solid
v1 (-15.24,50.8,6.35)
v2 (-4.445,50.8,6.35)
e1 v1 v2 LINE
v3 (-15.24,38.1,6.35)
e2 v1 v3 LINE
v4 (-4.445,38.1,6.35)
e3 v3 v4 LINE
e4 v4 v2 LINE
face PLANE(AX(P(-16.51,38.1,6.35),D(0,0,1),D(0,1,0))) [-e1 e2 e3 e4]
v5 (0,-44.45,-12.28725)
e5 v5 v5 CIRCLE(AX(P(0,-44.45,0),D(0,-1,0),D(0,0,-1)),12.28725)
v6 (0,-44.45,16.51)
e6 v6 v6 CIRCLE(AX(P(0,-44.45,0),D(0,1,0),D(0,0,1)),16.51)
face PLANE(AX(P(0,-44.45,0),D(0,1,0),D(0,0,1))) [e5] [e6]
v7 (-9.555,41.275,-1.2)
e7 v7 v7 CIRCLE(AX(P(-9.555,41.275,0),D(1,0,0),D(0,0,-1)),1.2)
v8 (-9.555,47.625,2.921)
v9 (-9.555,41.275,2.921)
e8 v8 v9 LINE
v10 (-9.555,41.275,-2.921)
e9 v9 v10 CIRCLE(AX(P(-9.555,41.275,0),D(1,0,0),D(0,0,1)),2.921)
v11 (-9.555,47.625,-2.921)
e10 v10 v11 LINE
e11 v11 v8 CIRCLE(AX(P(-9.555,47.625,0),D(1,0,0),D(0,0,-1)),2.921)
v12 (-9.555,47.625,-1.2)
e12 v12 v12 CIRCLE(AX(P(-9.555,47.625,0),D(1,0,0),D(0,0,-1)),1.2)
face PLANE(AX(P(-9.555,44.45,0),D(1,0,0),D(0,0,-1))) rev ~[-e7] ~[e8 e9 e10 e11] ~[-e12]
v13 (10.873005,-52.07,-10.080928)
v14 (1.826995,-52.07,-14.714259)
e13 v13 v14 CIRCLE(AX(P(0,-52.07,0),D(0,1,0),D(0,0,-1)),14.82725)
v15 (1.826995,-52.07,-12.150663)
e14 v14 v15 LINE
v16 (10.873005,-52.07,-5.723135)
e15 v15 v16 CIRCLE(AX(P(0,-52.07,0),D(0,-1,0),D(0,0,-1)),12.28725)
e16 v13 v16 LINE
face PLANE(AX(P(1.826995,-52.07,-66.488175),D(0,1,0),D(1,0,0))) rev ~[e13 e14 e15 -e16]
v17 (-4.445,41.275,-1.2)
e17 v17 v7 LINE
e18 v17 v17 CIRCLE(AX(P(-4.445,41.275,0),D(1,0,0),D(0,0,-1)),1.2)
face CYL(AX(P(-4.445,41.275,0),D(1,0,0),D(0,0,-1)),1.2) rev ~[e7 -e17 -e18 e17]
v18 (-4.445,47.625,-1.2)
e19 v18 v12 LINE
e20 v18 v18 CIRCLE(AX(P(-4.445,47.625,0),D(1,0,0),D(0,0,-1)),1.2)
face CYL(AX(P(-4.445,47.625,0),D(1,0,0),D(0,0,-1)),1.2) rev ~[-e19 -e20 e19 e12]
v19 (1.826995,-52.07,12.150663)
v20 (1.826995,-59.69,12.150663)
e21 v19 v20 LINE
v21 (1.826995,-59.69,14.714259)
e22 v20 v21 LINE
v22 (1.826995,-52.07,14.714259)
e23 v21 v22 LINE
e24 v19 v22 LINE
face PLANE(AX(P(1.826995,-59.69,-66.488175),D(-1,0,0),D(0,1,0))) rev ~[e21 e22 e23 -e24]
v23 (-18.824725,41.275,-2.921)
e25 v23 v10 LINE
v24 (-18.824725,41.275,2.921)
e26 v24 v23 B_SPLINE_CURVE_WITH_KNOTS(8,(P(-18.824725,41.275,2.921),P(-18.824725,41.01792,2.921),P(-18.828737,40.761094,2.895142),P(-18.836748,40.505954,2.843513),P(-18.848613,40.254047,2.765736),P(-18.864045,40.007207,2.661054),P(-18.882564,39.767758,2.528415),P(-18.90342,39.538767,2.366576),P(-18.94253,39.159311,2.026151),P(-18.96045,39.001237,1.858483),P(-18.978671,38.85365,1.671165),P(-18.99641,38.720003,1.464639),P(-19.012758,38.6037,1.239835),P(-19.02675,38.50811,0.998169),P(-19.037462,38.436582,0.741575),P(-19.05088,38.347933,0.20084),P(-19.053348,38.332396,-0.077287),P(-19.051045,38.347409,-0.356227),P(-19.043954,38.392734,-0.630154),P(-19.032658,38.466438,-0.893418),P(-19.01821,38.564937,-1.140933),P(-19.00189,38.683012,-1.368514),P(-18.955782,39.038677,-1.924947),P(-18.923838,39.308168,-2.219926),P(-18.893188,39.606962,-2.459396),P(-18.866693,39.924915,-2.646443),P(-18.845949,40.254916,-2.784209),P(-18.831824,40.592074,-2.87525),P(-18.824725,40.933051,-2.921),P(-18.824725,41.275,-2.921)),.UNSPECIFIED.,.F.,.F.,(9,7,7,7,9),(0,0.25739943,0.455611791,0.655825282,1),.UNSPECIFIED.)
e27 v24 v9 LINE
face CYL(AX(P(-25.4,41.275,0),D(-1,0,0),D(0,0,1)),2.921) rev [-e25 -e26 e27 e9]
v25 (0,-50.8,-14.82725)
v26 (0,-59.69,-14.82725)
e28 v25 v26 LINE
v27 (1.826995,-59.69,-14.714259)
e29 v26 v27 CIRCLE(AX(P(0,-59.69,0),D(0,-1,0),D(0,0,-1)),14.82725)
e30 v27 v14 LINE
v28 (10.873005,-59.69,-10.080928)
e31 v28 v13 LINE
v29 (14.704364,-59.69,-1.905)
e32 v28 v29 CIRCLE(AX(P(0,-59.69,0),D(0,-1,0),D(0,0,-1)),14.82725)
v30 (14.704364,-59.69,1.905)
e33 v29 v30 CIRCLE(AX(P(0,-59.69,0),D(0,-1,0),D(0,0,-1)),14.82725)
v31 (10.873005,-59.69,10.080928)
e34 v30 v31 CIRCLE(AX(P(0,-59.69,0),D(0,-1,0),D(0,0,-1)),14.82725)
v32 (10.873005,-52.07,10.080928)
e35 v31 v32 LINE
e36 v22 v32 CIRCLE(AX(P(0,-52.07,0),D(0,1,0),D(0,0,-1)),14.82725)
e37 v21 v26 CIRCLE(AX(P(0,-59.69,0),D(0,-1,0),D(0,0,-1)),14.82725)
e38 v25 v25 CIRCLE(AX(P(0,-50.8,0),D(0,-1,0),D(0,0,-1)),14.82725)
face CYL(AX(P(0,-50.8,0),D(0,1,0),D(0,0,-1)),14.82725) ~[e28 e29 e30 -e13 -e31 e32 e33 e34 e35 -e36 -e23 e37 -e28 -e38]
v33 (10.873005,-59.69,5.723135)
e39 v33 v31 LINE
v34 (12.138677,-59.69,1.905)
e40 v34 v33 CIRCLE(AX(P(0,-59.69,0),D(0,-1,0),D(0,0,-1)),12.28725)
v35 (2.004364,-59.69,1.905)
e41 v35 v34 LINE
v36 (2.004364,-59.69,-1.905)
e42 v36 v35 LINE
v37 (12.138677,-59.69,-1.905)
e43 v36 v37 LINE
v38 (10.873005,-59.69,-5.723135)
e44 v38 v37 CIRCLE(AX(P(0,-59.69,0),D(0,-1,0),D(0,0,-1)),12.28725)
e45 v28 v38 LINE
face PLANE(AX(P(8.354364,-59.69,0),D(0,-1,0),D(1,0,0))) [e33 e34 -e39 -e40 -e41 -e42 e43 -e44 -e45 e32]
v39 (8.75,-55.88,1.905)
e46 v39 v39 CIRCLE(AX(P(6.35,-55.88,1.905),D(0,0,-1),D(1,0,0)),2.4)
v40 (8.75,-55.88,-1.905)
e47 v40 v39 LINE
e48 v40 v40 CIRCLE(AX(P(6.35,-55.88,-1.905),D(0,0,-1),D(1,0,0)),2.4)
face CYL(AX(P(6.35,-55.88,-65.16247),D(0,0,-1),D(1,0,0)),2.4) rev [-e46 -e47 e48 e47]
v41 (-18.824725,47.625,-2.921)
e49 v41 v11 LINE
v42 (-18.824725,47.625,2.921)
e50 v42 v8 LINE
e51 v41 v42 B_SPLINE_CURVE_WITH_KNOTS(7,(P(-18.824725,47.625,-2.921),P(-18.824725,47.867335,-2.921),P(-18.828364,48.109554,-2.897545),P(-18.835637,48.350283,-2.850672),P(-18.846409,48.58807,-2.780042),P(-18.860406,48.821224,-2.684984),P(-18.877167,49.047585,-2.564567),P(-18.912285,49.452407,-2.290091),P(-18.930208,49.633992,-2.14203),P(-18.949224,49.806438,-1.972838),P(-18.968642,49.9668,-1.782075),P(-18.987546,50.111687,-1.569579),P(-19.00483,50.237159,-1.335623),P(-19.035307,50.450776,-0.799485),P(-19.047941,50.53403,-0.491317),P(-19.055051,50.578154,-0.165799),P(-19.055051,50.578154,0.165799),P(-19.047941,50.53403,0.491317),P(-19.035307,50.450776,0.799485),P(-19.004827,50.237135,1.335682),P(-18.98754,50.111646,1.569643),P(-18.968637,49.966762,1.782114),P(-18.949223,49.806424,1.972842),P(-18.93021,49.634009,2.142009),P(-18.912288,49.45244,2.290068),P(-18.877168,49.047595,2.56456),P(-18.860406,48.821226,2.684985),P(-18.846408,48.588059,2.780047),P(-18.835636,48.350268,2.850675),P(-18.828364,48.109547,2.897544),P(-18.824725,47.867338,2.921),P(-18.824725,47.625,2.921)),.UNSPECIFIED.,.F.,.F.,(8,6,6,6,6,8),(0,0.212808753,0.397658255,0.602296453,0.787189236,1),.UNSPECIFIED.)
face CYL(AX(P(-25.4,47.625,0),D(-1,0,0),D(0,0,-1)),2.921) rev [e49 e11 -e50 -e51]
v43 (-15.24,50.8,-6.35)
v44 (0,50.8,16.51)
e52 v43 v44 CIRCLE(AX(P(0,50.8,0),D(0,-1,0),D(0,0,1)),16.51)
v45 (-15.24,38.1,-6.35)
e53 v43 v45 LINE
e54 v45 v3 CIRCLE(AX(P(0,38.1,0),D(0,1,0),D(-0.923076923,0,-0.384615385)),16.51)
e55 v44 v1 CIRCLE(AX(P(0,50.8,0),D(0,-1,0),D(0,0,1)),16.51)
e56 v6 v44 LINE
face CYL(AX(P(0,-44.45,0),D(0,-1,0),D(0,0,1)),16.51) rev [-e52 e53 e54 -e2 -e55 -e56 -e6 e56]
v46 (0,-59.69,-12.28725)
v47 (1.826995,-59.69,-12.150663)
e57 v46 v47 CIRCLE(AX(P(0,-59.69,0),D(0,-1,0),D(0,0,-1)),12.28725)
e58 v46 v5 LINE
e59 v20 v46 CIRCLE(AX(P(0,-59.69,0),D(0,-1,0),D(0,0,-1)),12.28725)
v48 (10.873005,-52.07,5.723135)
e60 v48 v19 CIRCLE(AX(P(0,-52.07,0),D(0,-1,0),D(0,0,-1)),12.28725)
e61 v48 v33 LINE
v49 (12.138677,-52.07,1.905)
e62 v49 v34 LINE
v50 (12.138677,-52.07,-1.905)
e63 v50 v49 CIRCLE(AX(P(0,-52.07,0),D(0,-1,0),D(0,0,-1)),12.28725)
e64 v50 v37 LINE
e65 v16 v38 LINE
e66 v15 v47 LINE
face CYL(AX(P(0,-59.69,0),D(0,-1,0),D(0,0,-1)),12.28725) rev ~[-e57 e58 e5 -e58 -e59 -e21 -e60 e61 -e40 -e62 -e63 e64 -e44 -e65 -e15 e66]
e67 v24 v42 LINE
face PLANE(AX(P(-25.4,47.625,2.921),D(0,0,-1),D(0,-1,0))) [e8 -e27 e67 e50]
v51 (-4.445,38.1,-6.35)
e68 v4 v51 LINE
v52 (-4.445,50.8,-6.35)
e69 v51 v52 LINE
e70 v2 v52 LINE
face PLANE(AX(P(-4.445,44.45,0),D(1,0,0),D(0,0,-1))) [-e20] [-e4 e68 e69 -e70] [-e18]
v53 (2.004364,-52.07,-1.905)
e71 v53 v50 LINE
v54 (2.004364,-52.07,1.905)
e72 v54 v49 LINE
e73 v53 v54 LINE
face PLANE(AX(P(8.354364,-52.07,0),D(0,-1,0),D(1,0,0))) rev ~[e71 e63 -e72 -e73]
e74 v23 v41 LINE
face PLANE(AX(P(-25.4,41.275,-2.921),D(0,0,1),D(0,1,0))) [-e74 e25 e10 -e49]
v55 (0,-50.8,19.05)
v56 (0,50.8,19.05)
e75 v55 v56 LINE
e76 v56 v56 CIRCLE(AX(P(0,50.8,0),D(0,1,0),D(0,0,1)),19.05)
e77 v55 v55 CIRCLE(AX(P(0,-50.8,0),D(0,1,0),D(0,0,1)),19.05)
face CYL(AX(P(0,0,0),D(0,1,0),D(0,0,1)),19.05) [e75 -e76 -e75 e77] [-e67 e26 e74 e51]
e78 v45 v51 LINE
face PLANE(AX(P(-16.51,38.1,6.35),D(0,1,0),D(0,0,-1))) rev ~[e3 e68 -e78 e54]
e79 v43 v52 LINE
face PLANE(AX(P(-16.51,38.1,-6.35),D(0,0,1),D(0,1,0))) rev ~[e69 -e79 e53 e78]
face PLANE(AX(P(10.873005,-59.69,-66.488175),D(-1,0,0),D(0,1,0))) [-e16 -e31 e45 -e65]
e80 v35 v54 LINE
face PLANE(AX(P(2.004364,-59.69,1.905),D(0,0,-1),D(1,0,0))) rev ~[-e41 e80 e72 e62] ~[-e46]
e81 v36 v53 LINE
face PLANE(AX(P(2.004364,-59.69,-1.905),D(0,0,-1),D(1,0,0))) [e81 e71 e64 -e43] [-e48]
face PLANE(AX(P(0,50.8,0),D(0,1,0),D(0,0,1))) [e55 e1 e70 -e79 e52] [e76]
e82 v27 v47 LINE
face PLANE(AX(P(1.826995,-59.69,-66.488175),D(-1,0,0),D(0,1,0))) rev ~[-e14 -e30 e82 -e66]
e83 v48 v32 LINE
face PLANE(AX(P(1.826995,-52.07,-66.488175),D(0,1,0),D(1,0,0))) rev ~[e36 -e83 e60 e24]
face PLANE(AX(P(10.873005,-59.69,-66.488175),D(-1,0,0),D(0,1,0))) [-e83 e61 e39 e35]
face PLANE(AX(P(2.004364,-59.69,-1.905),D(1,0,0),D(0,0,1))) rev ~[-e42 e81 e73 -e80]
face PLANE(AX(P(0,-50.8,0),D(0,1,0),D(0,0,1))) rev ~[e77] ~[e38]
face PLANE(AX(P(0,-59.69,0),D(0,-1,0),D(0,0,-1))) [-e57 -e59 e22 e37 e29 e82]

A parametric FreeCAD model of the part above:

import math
import FreeCAD as App
import Part
import Sketcher
from FreeCAD import Vector
Q = App.Units.Quantity


def add_polygon(sketch, points):
    """Adds a closed chain of lines whose ends are joined by coincident constraints."""
    first, n = sketch.GeometryCount, len(points)
    for a, b in zip(points, points[1:] + points[:1]):
        sketch.addGeometry(Part.LineSegment(App.Vector(*a, 0), App.Vector(*b, 0)), False)
    for i in range(n):
        sketch.addConstraint(Sketcher.Constraint("Coincident", first + i, 2, first + (i + 1) % n, 1))

doc = App.newDocument("Part")
body = doc.addObject("PartDesign::Body", "Body")

sketch1 = doc.addObject("Sketcher::SketchObject", "Sketch")
body.addObject(sketch1)
sketch1.AttachmentSupport = (doc.XZ_Plane, [""])
sketch1.MapMode = "FlatFace"
sketch1.addGeometry(Part.Circle(Vector(0, 0, 0), Vector(0, 0, 1), 19), False)
sketch1.addConstraint([
    Sketcher.Constraint("Coincident", 0, 3, -1, 1),
    Sketcher.Constraint("Diameter", 0, Q("1.5 in")),
])
pad1 = doc.addObject("PartDesign::Pad", "Pad")
body.addObject(pad1)
pad1.Profile = sketch1
pad1.Length = Q("4 in")
pad1.Midplane = True

sketch2 = doc.addObject("Sketcher::SketchObject", "Sketch001")
body.addObject(sketch2)
sketch2.AttachmentSupport = (doc.XZ_Plane, [""])
sketch2.MapMode = "FlatFace"
sketch2.AttachmentOffset = App.Placement(Vector(0, 0, 2 * 25.4), App.Rotation())
sketch2.addGeometry(Part.Circle(Vector(0, 0, 0), Vector(0, 0, 1), 15), False)
sketch2.addConstraint([
    Sketcher.Constraint("Coincident", 0, 3, -1, 1),
    Sketcher.Constraint("Diameter", 0, Q("1.1675 in")),
])
pad2 = doc.addObject("PartDesign::Pad", "Pad001")
body.addObject(pad2)
pad2.Profile = sketch2
pad2.Length = Q("0.35 in")

sketch3 = doc.addObject("Sketcher::SketchObject", "Sketch002")
body.addObject(sketch3)
sketch3.AttachmentSupport = (doc.XZ_Plane, [""])
sketch3.MapMode = "FlatFace"
sketch3.AttachmentOffset = App.Placement(Vector(0, 0, -2 * 25.4), App.Rotation())
sketch3.addGeometry(Part.Circle(Vector(0, 0, 0), Vector(0, 0, 1), 17), False)
sketch3.addConstraint([
    Sketcher.Constraint("Coincident", 0, 3, -1, 1),
    Sketcher.Constraint("Diameter", 0, Q("1.3 in")),
])
pocket1 = doc.addObject("PartDesign::Pocket", "Pocket")
body.addObject(pocket1)
pocket1.Profile = sketch3
pocket1.Type = "TwoLengths"
pocket1.Length = 114.727064
pocket1.Length2 = Q("3.75 in")

sketch4 = doc.addObject("Sketcher::SketchObject", "Sketch003")
body.addObject(sketch4)
sketch4.AttachmentSupport = (doc.XZ_Plane, [""])
sketch4.MapMode = "FlatFace"
sketch4.AttachmentOffset = App.Placement(Vector(0, 0, 2.35 * 25.4), App.Rotation())
sketch4.addGeometry(Part.Circle(Vector(0, 0, 0), Vector(0, 0, 1), 12), False)
sketch4.addConstraint([
    Sketcher.Constraint("Coincident", 0, 3, -1, 1),
    Sketcher.Constraint("Diameter", 0, Q("0.9675 in")),
])
pocket2 = doc.addObject("PartDesign::Pocket", "Pocket001")
body.addObject(pocket2)
pocket2.Profile = sketch4
pocket2.Type = "UpToFirst"

sketch5 = doc.addObject("Sketcher::SketchObject", "Sketch004")
body.addObject(sketch5)
sketch5.AttachmentSupport = (doc.YZ_Plane, [""])
sketch5.MapMode = "FlatFace"
sketch5.AttachmentOffset = App.Placement(Vector(0, 0, -0.65 * 25.4), App.Rotation())
add_polygon(sketch5, [(51, 6), (38, 6), (38, -6), (51, -6)])
sketch5.addConstraint([
    Sketcher.Constraint("Horizontal", 0),
    Sketcher.Constraint("Vertical", 1),
    Sketcher.Constraint("Horizontal", 2),
    Sketcher.Constraint("Vertical", 3),
    Sketcher.Constraint("Equal", 2, 1),
    Sketcher.Constraint("DistanceX", 0, 2, 0, 1, Q("0.5 in")),
    Sketcher.Constraint("DistanceX", -1, 1, 2, 2, Q("2 in")),
    Sketcher.Constraint("DistanceY", -1, 1, 0, 2, Q("0.25 in")),
])
pad3 = doc.addObject("PartDesign::Pad", "Pad002")
body.addObject(pad3)
pad3.Profile = sketch5
pad3.Length = Q("0.475 in")

sketch6 = doc.addObject("Sketcher::SketchObject", "Sketch005")
body.addObject(sketch6)
sketch6.AttachmentSupport = (doc.XY_Plane, [""])
sketch6.MapMode = "FlatFace"
add_polygon(sketch6, [(2, -52), (2, -60), (11, -60), (11, -52)])
sketch6.addConstraint([
    Sketcher.Constraint("Vertical", 0),
    Sketcher.Constraint("Horizontal", 1),
    Sketcher.Constraint("Vertical", 2),
    Sketcher.Constraint("Horizontal", 3),
    Sketcher.Constraint("DistanceY", 0, 2, 0, 1, Q("0.3 in")),
    Sketcher.Constraint("DistanceY", 0, 2, -1, 1, Q("2.35 in")),
    Sketcher.Constraint("DistanceX", 1, 1, 1, 2, 9.04601),
    Sketcher.Constraint("DistanceX", -1, 1, 0, 2, 1.826995),
])
pocket3 = doc.addObject("PartDesign::Pocket", "Pocket002")
body.addObject(pocket3)
pocket3.Profile = sketch6
pocket3.Type = "ThroughAll"
pocket3.Midplane = True

sketch7 = doc.addObject("Sketcher::SketchObject", "Sketch006")
body.addObject(sketch7)
sketch7.AttachmentSupport = (doc.XZ_Plane, [""])
sketch7.MapMode = "FlatFace"
sketch7.AttachmentOffset = App.Placement(Vector(0, 0, 2.35 * 25.4), App.Rotation())
add_polygon(sketch7, [(2, 1.9), (2, -1.9), (14.7, -1.9), (14.7, 1.9)])
sketch7.addConstraint([
    Sketcher.Constraint("Vertical", 0),
    Sketcher.Constraint("Horizontal", 1),
    Sketcher.Constraint("Vertical", 2),
    Sketcher.Constraint("Horizontal", 3),
    Sketcher.Constraint("DistanceX", 1, 1, 1, 2, Q("0.5 in")),
    Sketcher.Constraint("DistanceY", 0, 2, 0, 1, Q("0.15 in")),
    Sketcher.Constraint("DistanceY", 0, 2, -1, 1, Q("0.075 in")),
    Sketcher.Constraint("DistanceX", -1, 1, 0, 2, 2.004364),
])
pad4 = doc.addObject("PartDesign::Pad", "Pad003")
body.addObject(pad4)
pad4.Profile = sketch7
pad4.Length = Q("0.3 in")
pad4.Reversed = True

sketch8 = doc.addObject("Sketcher::SketchObject", "Sketch007")
body.addObject(sketch8)
sketch8.AttachmentSupport = (doc.XY_Plane, [""])
sketch8.MapMode = "FlatFace"
sketch8.AttachmentOffset = App.Placement(Vector(0, 0, 0.075 * 25.4), App.Rotation())
sketch8.addGeometry(Part.Circle(Vector(6.3, -55.9, 0), Vector(0, 0, 1), 2.4), False)
sketch8.addConstraint([
    Sketcher.Constraint("DistanceY", 0, 3, -1, 1, Q("2.2 in")),
    Sketcher.Constraint("Diameter", 0, 4.8),
    Sketcher.Constraint("DistanceX", -1, 1, 0, 3, Q("0.25 in")),
])
pocket4 = doc.addObject("PartDesign::Pocket", "Pocket003")
body.addObject(pocket4)
pocket4.Profile = sketch8
pocket4.Type = "ThroughAll"
pocket4.Midplane = True

sketch9 = doc.addObject("Sketcher::SketchObject", "Sketch008")
body.addObject(sketch9)
sketch9.AttachmentSupport = (doc.YZ_Plane, [""])
sketch9.MapMode = "FlatFace"
sketch9.AttachmentOffset = App.Placement(Vector(0, 0, -0.175 * 25.4), App.Rotation())
sketch9.addGeometry([
    Part.Circle(Vector(41.3, 0, 0), Vector(0, 0, 1), 1.2),
    Part.Circle(Vector(47.6, 0, 0), Vector(0, 0, 1), 1.2),
], False)
sketch9.addConstraint([
    Sketcher.Constraint("Equal", 0, 1),
    Sketcher.Constraint("PointOnObject", 0, 3, -1),
    Sketcher.Constraint("PointOnObject", 1, 3, -1),
    Sketcher.Constraint("Diameter", 0, 2.4),
    Sketcher.Constraint("DistanceX", 0, 3, 1, 3, Q("0.25 in")),
    Sketcher.Constraint("DistanceX", -1, 1, 0, 3, Q("1.625 in")),
])
pocket5 = doc.addObject("PartDesign::Pocket", "Pocket004")
body.addObject(pocket5)
pocket5.Profile = sketch9
pocket5.Type = "ThroughAll"

sketch10 = doc.addObject("Sketcher::SketchObject", "Sketch009")
body.addObject(sketch10)
sketch10.AttachmentSupport = (doc.YZ_Plane, [""])
sketch10.MapMode = "FlatFace"
sketch10.AttachmentOffset = App.Placement(Vector(0, 0, -1 * 25.4), App.Rotation())
sketch10.addGeometry([
    Part.LineSegment(Vector(47.6, -2.9, 0), Vector(41.3, -2.9, 0)),
    Part.ArcOfCircle(Part.Circle(Vector(41.3, 0, 0), Vector(0, 0, 1), 2.9), math.radians(90), math.radians(270)),
    Part.LineSegment(Vector(41.3, 2.9, 0), Vector(47.6, 2.9, 0)),
    Part.ArcOfCircle(Part.Circle(Vector(47.6, 0, 0), Vector(0, 0, 1), 2.9), math.radians(-90), math.radians(90)),
], False)
sketch10.addConstraint([
    Sketcher.Constraint("Tangent", 0, 2, 1, 2),
    Sketcher.Constraint("Tangent", 1, 1, 2, 1),
    Sketcher.Constraint("Tangent", 2, 2, 3, 2),
    Sketcher.Constraint("Tangent", 3, 1, 0, 1),
    Sketcher.Constraint("Horizontal", 0),
    Sketcher.Constraint("Horizontal", 2),
    Sketcher.Constraint("PointOnObject", 1, 3, -1),
    Sketcher.Constraint("Radius", 1, Q("0.115 in")),
    Sketcher.Constraint("DistanceX", 0, 2, 0, 1, Q("0.25 in")),
    Sketcher.Constraint("DistanceX", -1, 1, 1, 3, Q("1.625 in")),
])
pocket6 = doc.addObject("PartDesign::Pocket", "Pocket005")
body.addObject(pocket6)
pocket6.Profile = sketch10
pocket6.Length = 15.845
pocket6.Reversed = True

doc.recompute()
